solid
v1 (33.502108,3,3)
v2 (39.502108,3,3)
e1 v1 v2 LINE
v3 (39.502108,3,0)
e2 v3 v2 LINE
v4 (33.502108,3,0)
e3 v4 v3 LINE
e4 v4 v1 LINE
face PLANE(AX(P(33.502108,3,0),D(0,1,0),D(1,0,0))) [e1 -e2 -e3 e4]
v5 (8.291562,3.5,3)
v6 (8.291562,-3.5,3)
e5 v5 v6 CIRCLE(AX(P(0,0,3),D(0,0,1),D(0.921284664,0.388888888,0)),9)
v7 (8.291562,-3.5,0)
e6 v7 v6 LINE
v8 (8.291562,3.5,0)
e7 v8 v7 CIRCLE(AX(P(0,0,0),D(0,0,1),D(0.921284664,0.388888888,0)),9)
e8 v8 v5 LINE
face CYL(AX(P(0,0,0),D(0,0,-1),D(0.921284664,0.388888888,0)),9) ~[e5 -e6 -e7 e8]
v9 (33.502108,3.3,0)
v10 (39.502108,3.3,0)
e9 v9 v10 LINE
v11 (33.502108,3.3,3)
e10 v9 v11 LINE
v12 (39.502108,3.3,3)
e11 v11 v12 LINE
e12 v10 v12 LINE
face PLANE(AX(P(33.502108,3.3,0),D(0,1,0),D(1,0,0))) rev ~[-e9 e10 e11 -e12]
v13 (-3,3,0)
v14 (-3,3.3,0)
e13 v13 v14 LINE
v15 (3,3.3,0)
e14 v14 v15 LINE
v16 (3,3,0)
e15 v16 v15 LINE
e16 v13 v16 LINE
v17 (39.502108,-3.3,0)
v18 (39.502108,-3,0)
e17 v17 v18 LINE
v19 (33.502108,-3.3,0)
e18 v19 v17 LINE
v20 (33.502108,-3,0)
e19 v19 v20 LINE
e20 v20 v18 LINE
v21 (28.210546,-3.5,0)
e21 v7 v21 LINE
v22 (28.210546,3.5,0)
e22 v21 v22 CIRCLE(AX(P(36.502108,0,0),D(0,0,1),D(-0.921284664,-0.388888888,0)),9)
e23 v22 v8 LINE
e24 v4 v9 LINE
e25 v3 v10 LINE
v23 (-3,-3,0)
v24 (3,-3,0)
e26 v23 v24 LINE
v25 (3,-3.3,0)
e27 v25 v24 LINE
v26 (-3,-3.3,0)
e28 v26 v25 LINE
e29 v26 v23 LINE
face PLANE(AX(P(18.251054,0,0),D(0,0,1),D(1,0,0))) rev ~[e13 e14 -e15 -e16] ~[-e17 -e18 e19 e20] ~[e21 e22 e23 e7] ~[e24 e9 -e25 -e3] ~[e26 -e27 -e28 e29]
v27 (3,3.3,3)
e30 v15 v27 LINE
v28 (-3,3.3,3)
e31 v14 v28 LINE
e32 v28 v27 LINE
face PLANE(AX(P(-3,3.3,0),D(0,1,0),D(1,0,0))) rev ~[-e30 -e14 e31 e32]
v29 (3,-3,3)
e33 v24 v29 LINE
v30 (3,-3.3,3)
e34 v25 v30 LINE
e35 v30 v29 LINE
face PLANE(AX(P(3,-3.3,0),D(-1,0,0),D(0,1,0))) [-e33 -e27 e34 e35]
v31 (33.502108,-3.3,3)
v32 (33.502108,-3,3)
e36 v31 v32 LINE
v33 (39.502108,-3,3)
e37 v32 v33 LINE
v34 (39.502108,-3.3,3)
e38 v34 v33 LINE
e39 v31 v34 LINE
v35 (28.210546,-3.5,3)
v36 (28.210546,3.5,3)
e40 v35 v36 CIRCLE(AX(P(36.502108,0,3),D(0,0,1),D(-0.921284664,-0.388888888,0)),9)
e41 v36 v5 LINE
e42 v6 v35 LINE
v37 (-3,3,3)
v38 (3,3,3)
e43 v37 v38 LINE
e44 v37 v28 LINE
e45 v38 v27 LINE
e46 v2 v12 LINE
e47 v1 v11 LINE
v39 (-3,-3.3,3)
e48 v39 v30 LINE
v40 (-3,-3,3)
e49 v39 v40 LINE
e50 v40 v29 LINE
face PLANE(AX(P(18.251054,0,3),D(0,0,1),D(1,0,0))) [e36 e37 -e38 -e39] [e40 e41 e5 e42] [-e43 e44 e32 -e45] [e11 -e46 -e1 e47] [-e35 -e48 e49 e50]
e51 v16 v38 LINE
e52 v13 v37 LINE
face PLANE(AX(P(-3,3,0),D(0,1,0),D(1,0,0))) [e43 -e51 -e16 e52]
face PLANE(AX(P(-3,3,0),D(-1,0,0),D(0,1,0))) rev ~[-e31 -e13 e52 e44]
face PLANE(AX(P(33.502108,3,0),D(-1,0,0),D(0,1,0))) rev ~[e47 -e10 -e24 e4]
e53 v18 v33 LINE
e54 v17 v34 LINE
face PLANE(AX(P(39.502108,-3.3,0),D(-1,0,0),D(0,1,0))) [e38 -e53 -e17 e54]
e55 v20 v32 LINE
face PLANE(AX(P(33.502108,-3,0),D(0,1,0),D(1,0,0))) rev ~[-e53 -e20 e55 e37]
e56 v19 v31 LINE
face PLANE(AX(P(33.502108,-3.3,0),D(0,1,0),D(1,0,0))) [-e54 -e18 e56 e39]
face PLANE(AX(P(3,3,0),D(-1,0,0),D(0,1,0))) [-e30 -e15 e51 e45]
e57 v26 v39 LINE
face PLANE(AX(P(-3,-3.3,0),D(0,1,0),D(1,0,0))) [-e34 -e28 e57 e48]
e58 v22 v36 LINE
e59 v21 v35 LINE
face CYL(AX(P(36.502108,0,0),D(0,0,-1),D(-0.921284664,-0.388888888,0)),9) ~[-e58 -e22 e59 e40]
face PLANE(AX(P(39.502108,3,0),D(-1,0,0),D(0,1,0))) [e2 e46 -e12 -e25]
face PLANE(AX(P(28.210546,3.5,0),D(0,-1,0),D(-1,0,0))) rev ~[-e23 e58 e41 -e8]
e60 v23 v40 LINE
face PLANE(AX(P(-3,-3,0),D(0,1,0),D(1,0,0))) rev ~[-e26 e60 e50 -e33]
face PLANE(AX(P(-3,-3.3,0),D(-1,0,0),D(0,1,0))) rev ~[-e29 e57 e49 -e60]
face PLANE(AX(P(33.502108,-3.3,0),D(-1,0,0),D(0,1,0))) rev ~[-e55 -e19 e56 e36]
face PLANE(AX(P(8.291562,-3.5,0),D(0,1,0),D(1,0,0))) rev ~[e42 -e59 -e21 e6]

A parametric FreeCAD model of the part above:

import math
import FreeCAD as App
import Part
import Sketcher
from FreeCAD import Vector


def add_polygon(sketch, points):
    """Adds a closed chain of lines whose ends are joined by coincident constraints."""
    first, n = sketch.GeometryCount, len(points)
    for a, b in zip(points, points[1:] + points[:1]):
        sketch.addGeometry(Part.LineSegment(App.Vector(*a, 0), App.Vector(*b, 0)), False)
    for i in range(n):
        sketch.addConstraint(Sketcher.Constraint("Coincident", first + i, 2, first + (i + 1) % n, 1))

doc = App.newDocument("Part")
params = doc.addObject("Spreadsheet::Sheet", "Params")
for row, (alias, value) in enumerate([
    ("sketch1_radius", "9 mm"),
    ("sketch1_width", "6 mm"),
    ("sketch1_height", "0.3 mm"),
    ("pad1_length", "3 mm"),
], start=1):
    params.set(f"A{row}", alias)
    params.set(f"B{row}", "=" + value)
    params.setAlias(f"B{row}", alias)

body = doc.addObject("PartDesign::Body", "Body")

# Sketch on XY plane
sketch1 = body.newObject("Sketcher::SketchObject", "Sketch")
sketch1.AttachmentSupport = (doc.getObject("XY_Plane"), [""])
sketch1.MapMode = "FlatFace"
sketch1.addGeometry(Part.LineSegment(Vector(28.210546, 3.5, 0), Vector(8.291562, 3.5, 0)), False)  # 0
sketch1.addGeometry(Part.ArcOfCircle(Part.Circle(Vector(0, 0, 0), Vector(0, 0, 1), 9), math.radians(22.88538), math.radians(337.11462)), False)  # 1
sketch1.addGeometry(Part.LineSegment(Vector(8.291562, -3.5, 0), Vector(28.210546, -3.5, 0)), False)  # 2
sketch1.addGeometry(Part.ArcOfCircle(Part.Circle(Vector(36.502108, 0, 0), Vector(0, 0, 1), 9), math.radians(-157.11462), math.radians(157.11462)), False)  # 3
add_polygon(sketch1, [(3, -3.3), (-3, -3.3), (-3, -3), (3, -3)])  # lines 4-7
add_polygon(sketch1, [(39.502108, -3.3), (33.502108, -3.3), (33.502108, -3), (39.502108, -3)])  # lines 8-11
add_polygon(sketch1, [(3, 3), (-3, 3), (-3, 3.3), (3, 3.3)])  # lines 12-15
add_polygon(sketch1, [(39.502108, 3), (33.502108, 3), (33.502108, 3.3), (39.502108, 3.3)])  # lines 16-19
sketch1.addConstraint(Sketcher.Constraint("Coincident", 0, 2, 1, 1))
sketch1.addConstraint(Sketcher.Constraint("Coincident", 1, 2, 2, 1))
sketch1.addConstraint(Sketcher.Constraint("Coincident", 2, 2, 3, 1))
sketch1.addConstraint(Sketcher.Constraint("Coincident", 3, 2, 0, 1))
sketch1.addConstraint(Sketcher.Constraint("Horizontal", 0))
sketch1.addConstraint(Sketcher.Constraint("Horizontal", 2))
sketch1.addConstraint(Sketcher.Constraint("Horizontal", 4))
sketch1.addConstraint(Sketcher.Constraint("Vertical", 5))
sketch1.addConstraint(Sketcher.Constraint("Horizontal", 6))
sketch1.addConstraint(Sketcher.Constraint("Vertical", 7))
sketch1.addConstraint(Sketcher.Constraint("Horizontal", 8))
sketch1.addConstraint(Sketcher.Constraint("Vertical", 9))
sketch1.addConstraint(Sketcher.Constraint("Horizontal", 10))
sketch1.addConstraint(Sketcher.Constraint("Vertical", 11))
sketch1.addConstraint(Sketcher.Constraint("Horizontal", 12))
sketch1.addConstraint(Sketcher.Constraint("Vertical", 13))
sketch1.addConstraint(Sketcher.Constraint("Horizontal", 14))
sketch1.addConstraint(Sketcher.Constraint("Vertical", 15))
sketch1.addConstraint(Sketcher.Constraint("Horizontal", 16))
sketch1.addConstraint(Sketcher.Constraint("Vertical", 17))
sketch1.addConstraint(Sketcher.Constraint("Horizontal", 18))
sketch1.addConstraint(Sketcher.Constraint("Vertical", 19))
sketch1.addConstraint(Sketcher.Constraint("Coincident", 1, 3, -1, 1))
sketch1.addConstraint(Sketcher.Constraint("Equal", 1, 3))
sketch1.addConstraint(Sketcher.Constraint("Symmetric", 6, 2, 12, 2, -1, 1))
sketch1.addConstraint(Sketcher.Constraint("Symmetric", 4, 2, 14, 2, -1, 1))
sketch1.addConstraint(Sketcher.Constraint("Symmetric", 2, 2, 3, 2, -1))
sketch1.addConstraint(Sketcher.Constraint("Symmetric", 9, 2, 16, 2, -1))
sketch1.addConstraint(Sketcher.Constraint("Symmetric", 11, 2, 18, 2, -1))
sketch1.addConstraint(Sketcher.Constraint("Horizontal", 7, 2, 8, 2))
sketch1.addConstraint(Sketcher.Constraint("Horizontal", 6, 2, 9, 2))
sketch1.addConstraint(Sketcher.Constraint("Vertical", 5, 2, 12, 2))
sketch1.addConstraint(Sketcher.Constraint("Equal", 6, 8))
sketch1.addConstraint(Sketcher.Constraint("Radius", 1, 9.0))
sketch1.addConstraint(Sketcher.Constraint("DistanceX", 4, 2, 4, 1, 6.0))
sketch1.addConstraint(Sketcher.Constraint("DistanceY", 5, 1, 5, 2, 0.3))
sketch1.addConstraint(Sketcher.Constraint("DistanceY", 5, 2, -1, 1, 3.0))
sketch1.addConstraint(Sketcher.Constraint("DistanceY", 1, 2, 0, 2, 7.0))
sketch1.addConstraint(Sketcher.Constraint("DistanceX", 8, 2, 3, 3, 3.0))
sketch1.addConstraint(Sketcher.Constraint("DistanceX", 0, 2, 0, 1, 19.918984))
sketch1.setExpression("Constraints[49]", "Params.sketch1_radius")
sketch1.setExpression("Constraints[50]", "Params.sketch1_width")
sketch1.setExpression("Constraints[51]", "Params.sketch1_height")
pad1 = body.newObject("PartDesign::Pad", "Pad")
pad1.Profile = sketch1
pad1.setExpression("Length", "Params.pad1_length")

doc.recompute()
